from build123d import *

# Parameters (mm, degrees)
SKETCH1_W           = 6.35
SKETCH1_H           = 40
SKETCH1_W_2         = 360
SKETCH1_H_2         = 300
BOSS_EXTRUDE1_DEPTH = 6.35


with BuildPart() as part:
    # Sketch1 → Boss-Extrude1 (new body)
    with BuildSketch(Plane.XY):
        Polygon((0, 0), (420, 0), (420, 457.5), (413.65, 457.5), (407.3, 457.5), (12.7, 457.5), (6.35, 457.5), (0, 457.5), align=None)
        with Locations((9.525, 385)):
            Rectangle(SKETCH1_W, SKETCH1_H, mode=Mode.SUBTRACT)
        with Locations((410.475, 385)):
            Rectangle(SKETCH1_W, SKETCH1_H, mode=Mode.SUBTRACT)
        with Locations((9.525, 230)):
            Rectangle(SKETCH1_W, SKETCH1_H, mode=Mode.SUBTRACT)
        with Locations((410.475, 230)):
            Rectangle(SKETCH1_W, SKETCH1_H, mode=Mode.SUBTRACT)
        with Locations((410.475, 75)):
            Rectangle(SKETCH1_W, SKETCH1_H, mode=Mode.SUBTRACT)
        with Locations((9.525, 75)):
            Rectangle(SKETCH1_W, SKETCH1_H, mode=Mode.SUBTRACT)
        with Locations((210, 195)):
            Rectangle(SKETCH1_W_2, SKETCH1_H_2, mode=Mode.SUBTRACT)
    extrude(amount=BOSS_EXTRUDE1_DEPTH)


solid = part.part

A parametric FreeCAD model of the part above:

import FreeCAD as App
import Part
import Sketcher
from FreeCAD import Vector

doc = App.newDocument("Part")
params = doc.addObject("Spreadsheet::Sheet", "Params")
for row, (alias, value) in enumerate([
    ("sketch1_width", "420 mm"),
    ("sketch1_width2", "360 mm"),
    ("sketch1_height", "40 mm"),
    ("sketch1_height2", "300 mm"),
    ("sketch1_height3", "457.5 mm"),
    ("pad1_length", "6.35 mm"),
], start=1):
    params.set(f"A{row}", alias)
    params.set(f"B{row}", "=" + value)
    params.setAlias(f"B{row}", alias)

body = doc.addObject("PartDesign::Body", "Body")

# Sketch on XY plane
sketch1 = body.newObject("Sketcher::SketchObject", "Sketch")
sketch1.AttachmentSupport = (doc.getObject("XY_Plane"), [""])
sketch1.MapMode = "FlatFace"
sketch1.addGeometry([
    Part.LineSegment(Vector(0, 0, 0), Vector(420, 0, 0)),  # 0
    Part.LineSegment(Vector(420, 0, 0), Vector(420, 458, 0)),  # 1
    Part.LineSegment(Vector(420, 458, 0), Vector(0, 458, 0)),  # 2
    Part.LineSegment(Vector(0, 458, 0), Vector(0, 0, 0)),  # 3
    Part.LineSegment(Vector(13, 55, 0), Vector(6, 55, 0)),  # 4
    Part.LineSegment(Vector(6, 55, 0), Vector(6, 95, 0)),  # 5
    Part.LineSegment(Vector(6, 95, 0), Vector(13, 95, 0)),  # 6
    Part.LineSegment(Vector(13, 95, 0), Vector(13, 55, 0)),  # 7
    Part.LineSegment(Vector(390, 45, 0), Vector(30, 45, 0)),  # 8
    Part.LineSegment(Vector(30, 45, 0), Vector(30, 345, 0)),  # 9
    Part.LineSegment(Vector(30, 345, 0), Vector(390, 345, 0)),  # 10
    Part.LineSegment(Vector(390, 345, 0), Vector(390, 45, 0)),  # 11
    Part.LineSegment(Vector(414, 55, 0), Vector(407, 55, 0)),  # 12
    Part.LineSegment(Vector(407, 55, 0), Vector(407, 95, 0)),  # 13
    Part.LineSegment(Vector(407, 95, 0), Vector(414, 95, 0)),  # 14
    Part.LineSegment(Vector(414, 95, 0), Vector(414, 55, 0)),  # 15
    Part.LineSegment(Vector(13, 210, 0), Vector(6, 210, 0)),  # 16
    Part.LineSegment(Vector(6, 210, 0), Vector(6, 250, 0)),  # 17
    Part.LineSegment(Vector(6, 250, 0), Vector(13, 250, 0)),  # 18
    Part.LineSegment(Vector(13, 250, 0), Vector(13, 210, 0)),  # 19
    Part.LineSegment(Vector(13, 365, 0), Vector(6, 365, 0)),  # 20
    Part.LineSegment(Vector(6, 365, 0), Vector(6, 405, 0)),  # 21
    Part.LineSegment(Vector(6, 405, 0), Vector(13, 405, 0)),  # 22
    Part.LineSegment(Vector(13, 405, 0), Vector(13, 365, 0)),  # 23
    Part.LineSegment(Vector(414, 210, 0), Vector(407, 210, 0)),  # 24
    Part.LineSegment(Vector(407, 210, 0), Vector(407, 250, 0)),  # 25
    Part.LineSegment(Vector(407, 250, 0), Vector(414, 250, 0)),  # 26
    Part.LineSegment(Vector(414, 250, 0), Vector(414, 210, 0)),  # 27
    Part.LineSegment(Vector(414, 365, 0), Vector(407, 365, 0)),  # 28
    Part.LineSegment(Vector(407, 365, 0), Vector(407, 405, 0)),  # 29
    Part.LineSegment(Vector(407, 405, 0), Vector(414, 405, 0)),  # 30
    Part.LineSegment(Vector(414, 405, 0), Vector(414, 365, 0)),  # 31
], False)
sketch1.addConstraint([
    Sketcher.Constraint("Coincident", 0, 2, 1, 1),
    Sketcher.Constraint("Coincident", 1, 2, 2, 1),
    Sketcher.Constraint("Coincident", 2, 2, 3, 1),
    Sketcher.Constraint("Coincident", 3, 2, 0, 1),
    Sketcher.Constraint("Coincident", 4, 2, 5, 1),
    Sketcher.Constraint("Coincident", 5, 2, 6, 1),
    Sketcher.Constraint("Coincident", 6, 2, 7, 1),
    Sketcher.Constraint("Coincident", 7, 2, 4, 1),
    Sketcher.Constraint("Coincident", 8, 2, 9, 1),
    Sketcher.Constraint("Coincident", 9, 2, 10, 1),
    Sketcher.Constraint("Coincident", 10, 2, 11, 1),
    Sketcher.Constraint("Coincident", 11, 2, 8, 1),
    Sketcher.Constraint("Coincident", 12, 2, 13, 1),
    Sketcher.Constraint("Coincident", 13, 2, 14, 1),
    Sketcher.Constraint("Coincident", 14, 2, 15, 1),
    Sketcher.Constraint("Coincident", 15, 2, 12, 1),
    Sketcher.Constraint("Coincident", 16, 2, 17, 1),
    Sketcher.Constraint("Coincident", 17, 2, 18, 1),
    Sketcher.Constraint("Coincident", 18, 2, 19, 1),
    Sketcher.Constraint("Coincident", 19, 2, 16, 1),
    Sketcher.Constraint("Coincident", 20, 2, 21, 1),
    Sketcher.Constraint("Coincident", 21, 2, 22, 1),
    Sketcher.Constraint("Coincident", 22, 2, 23, 1),
    Sketcher.Constraint("Coincident", 23, 2, 20, 1),
    Sketcher.Constraint("Coincident", 24, 2, 25, 1),
    Sketcher.Constraint("Coincident", 25, 2, 26, 1),
    Sketcher.Constraint("Coincident", 26, 2, 27, 1),
    Sketcher.Constraint("Coincident", 27, 2, 24, 1),
    Sketcher.Constraint("Coincident", 28, 2, 29, 1),
    Sketcher.Constraint("Coincident", 29, 2, 30, 1),
    Sketcher.Constraint("Coincident", 30, 2, 31, 1),
    Sketcher.Constraint("Coincident", 31, 2, 28, 1),
    Sketcher.Constraint("Horizontal", 0),
    Sketcher.Constraint("Vertical", 1),
    Sketcher.Constraint("Horizontal", 2),
    Sketcher.Constraint("Vertical", 3),
    Sketcher.Constraint("Horizontal", 4),
    Sketcher.Constraint("Vertical", 5),
    Sketcher.Constraint("Horizontal", 6),
    Sketcher.Constraint("Vertical", 7),
    Sketcher.Constraint("Horizontal", 8),
    Sketcher.Constraint("Vertical", 9),
    Sketcher.Constraint("Horizontal", 10),
    Sketcher.Constraint("Vertical", 11),
    Sketcher.Constraint("Horizontal", 12),
    Sketcher.Constraint("Vertical", 13),
    Sketcher.Constraint("Horizontal", 14),
    Sketcher.Constraint("Vertical", 15),
    Sketcher.Constraint("Horizontal", 16),
    Sketcher.Constraint("Vertical", 17),
    Sketcher.Constraint("Horizontal", 18),
    Sketcher.Constraint("Vertical", 19),
    Sketcher.Constraint("Horizontal", 20),
    Sketcher.Constraint("Vertical", 21),
    Sketcher.Constraint("Horizontal", 22),
    Sketcher.Constraint("Vertical", 23),
    Sketcher.Constraint("Horizontal", 24),
    Sketcher.Constraint("Vertical", 25),
    Sketcher.Constraint("Horizontal", 26),
    Sketcher.Constraint("Vertical", 27),
    Sketcher.Constraint("Horizontal", 28),
    Sketcher.Constraint("Vertical", 29),
    Sketcher.Constraint("Horizontal", 30),
    Sketcher.Constraint("Vertical", 31),
    Sketcher.Constraint("Coincident", 3, 2, -1, 1),
    Sketcher.Constraint("Horizontal", 7, 2, 12, 2),
    Sketcher.Constraint("Horizontal", 6, 2, 13, 2),
    Sketcher.Constraint("Horizontal", 19, 2, 24, 2),
    Sketcher.Constraint("Horizontal", 18, 2, 25, 2),
    Sketcher.Constraint("Horizontal", 23, 2, 28, 2),
    Sketcher.Constraint("Horizontal", 22, 2, 29, 2),
    Sketcher.Constraint("Vertical", 5, 2, 16, 2),
    Sketcher.Constraint("Vertical", 7, 2, 18, 2),
    Sketcher.Constraint("Vertical", 17, 2, 20, 2),
    Sketcher.Constraint("Vertical", 19, 2, 22, 2),
    Sketcher.Constraint("Vertical", 13, 2, 24, 2),
    Sketcher.Constraint("Vertical", 15, 2, 26, 2),
    Sketcher.Constraint("Vertical", 25, 2, 28, 2),
    Sketcher.Constraint("Vertical", 27, 2, 30, 2),
    Sketcher.Constraint("Equal", 6, 12),
    Sketcher.Constraint("Equal", 15, 17),
    Sketcher.Constraint("Equal", 19, 21),
    Sketcher.Constraint("DistanceX", 0, 1, 0, 2, 420.0),
    Sketcher.Constraint("DistanceX", 8, 2, 8, 1, 360.0),
    Sketcher.Constraint("DistanceY", 5, 1, 5, 2, 40.0),
    Sketcher.Constraint("DistanceY", 9, 1, 9, 2, 300.0),
    Sketcher.Constraint("DistanceY", 1, 1, 1, 2, 457.5),
    Sketcher.Constraint("DistanceY", -1, 1, 4, 2, 55.0),
    Sketcher.Constraint("DistanceX", -1, 1, 8, 2, 30.0),
    Sketcher.Constraint("DistanceY", -1, 1, 8, 2, 45.0),
    Sketcher.Constraint("DistanceY", -1, 1, 16, 2, 210.0),
    Sketcher.Constraint("DistanceY", -1, 1, 20, 2, 365.0),
    Sketcher.Constraint("DistanceX", 4, 2, 4, 1, 6.35),
    Sketcher.Constraint("DistanceX", -1, 1, 6, 2, 12.7),
    Sketcher.Constraint("DistanceX", -1, 1, 12, 2, 407.3),
])
sketch1.setExpression("Constraints[82]", "Params.sketch1_width")
sketch1.setExpression("Constraints[83]", "Params.sketch1_width2")
sketch1.setExpression("Constraints[84]", "Params.sketch1_height")
sketch1.setExpression("Constraints[85]", "Params.sketch1_height2")
sketch1.setExpression("Constraints[86]", "Params.sketch1_height3")
pad1 = body.newObject("PartDesign::Pad", "Pad")
pad1.Profile = sketch1
pad1.setExpression("Length", "Params.pad1_length")

doc.recompute()
